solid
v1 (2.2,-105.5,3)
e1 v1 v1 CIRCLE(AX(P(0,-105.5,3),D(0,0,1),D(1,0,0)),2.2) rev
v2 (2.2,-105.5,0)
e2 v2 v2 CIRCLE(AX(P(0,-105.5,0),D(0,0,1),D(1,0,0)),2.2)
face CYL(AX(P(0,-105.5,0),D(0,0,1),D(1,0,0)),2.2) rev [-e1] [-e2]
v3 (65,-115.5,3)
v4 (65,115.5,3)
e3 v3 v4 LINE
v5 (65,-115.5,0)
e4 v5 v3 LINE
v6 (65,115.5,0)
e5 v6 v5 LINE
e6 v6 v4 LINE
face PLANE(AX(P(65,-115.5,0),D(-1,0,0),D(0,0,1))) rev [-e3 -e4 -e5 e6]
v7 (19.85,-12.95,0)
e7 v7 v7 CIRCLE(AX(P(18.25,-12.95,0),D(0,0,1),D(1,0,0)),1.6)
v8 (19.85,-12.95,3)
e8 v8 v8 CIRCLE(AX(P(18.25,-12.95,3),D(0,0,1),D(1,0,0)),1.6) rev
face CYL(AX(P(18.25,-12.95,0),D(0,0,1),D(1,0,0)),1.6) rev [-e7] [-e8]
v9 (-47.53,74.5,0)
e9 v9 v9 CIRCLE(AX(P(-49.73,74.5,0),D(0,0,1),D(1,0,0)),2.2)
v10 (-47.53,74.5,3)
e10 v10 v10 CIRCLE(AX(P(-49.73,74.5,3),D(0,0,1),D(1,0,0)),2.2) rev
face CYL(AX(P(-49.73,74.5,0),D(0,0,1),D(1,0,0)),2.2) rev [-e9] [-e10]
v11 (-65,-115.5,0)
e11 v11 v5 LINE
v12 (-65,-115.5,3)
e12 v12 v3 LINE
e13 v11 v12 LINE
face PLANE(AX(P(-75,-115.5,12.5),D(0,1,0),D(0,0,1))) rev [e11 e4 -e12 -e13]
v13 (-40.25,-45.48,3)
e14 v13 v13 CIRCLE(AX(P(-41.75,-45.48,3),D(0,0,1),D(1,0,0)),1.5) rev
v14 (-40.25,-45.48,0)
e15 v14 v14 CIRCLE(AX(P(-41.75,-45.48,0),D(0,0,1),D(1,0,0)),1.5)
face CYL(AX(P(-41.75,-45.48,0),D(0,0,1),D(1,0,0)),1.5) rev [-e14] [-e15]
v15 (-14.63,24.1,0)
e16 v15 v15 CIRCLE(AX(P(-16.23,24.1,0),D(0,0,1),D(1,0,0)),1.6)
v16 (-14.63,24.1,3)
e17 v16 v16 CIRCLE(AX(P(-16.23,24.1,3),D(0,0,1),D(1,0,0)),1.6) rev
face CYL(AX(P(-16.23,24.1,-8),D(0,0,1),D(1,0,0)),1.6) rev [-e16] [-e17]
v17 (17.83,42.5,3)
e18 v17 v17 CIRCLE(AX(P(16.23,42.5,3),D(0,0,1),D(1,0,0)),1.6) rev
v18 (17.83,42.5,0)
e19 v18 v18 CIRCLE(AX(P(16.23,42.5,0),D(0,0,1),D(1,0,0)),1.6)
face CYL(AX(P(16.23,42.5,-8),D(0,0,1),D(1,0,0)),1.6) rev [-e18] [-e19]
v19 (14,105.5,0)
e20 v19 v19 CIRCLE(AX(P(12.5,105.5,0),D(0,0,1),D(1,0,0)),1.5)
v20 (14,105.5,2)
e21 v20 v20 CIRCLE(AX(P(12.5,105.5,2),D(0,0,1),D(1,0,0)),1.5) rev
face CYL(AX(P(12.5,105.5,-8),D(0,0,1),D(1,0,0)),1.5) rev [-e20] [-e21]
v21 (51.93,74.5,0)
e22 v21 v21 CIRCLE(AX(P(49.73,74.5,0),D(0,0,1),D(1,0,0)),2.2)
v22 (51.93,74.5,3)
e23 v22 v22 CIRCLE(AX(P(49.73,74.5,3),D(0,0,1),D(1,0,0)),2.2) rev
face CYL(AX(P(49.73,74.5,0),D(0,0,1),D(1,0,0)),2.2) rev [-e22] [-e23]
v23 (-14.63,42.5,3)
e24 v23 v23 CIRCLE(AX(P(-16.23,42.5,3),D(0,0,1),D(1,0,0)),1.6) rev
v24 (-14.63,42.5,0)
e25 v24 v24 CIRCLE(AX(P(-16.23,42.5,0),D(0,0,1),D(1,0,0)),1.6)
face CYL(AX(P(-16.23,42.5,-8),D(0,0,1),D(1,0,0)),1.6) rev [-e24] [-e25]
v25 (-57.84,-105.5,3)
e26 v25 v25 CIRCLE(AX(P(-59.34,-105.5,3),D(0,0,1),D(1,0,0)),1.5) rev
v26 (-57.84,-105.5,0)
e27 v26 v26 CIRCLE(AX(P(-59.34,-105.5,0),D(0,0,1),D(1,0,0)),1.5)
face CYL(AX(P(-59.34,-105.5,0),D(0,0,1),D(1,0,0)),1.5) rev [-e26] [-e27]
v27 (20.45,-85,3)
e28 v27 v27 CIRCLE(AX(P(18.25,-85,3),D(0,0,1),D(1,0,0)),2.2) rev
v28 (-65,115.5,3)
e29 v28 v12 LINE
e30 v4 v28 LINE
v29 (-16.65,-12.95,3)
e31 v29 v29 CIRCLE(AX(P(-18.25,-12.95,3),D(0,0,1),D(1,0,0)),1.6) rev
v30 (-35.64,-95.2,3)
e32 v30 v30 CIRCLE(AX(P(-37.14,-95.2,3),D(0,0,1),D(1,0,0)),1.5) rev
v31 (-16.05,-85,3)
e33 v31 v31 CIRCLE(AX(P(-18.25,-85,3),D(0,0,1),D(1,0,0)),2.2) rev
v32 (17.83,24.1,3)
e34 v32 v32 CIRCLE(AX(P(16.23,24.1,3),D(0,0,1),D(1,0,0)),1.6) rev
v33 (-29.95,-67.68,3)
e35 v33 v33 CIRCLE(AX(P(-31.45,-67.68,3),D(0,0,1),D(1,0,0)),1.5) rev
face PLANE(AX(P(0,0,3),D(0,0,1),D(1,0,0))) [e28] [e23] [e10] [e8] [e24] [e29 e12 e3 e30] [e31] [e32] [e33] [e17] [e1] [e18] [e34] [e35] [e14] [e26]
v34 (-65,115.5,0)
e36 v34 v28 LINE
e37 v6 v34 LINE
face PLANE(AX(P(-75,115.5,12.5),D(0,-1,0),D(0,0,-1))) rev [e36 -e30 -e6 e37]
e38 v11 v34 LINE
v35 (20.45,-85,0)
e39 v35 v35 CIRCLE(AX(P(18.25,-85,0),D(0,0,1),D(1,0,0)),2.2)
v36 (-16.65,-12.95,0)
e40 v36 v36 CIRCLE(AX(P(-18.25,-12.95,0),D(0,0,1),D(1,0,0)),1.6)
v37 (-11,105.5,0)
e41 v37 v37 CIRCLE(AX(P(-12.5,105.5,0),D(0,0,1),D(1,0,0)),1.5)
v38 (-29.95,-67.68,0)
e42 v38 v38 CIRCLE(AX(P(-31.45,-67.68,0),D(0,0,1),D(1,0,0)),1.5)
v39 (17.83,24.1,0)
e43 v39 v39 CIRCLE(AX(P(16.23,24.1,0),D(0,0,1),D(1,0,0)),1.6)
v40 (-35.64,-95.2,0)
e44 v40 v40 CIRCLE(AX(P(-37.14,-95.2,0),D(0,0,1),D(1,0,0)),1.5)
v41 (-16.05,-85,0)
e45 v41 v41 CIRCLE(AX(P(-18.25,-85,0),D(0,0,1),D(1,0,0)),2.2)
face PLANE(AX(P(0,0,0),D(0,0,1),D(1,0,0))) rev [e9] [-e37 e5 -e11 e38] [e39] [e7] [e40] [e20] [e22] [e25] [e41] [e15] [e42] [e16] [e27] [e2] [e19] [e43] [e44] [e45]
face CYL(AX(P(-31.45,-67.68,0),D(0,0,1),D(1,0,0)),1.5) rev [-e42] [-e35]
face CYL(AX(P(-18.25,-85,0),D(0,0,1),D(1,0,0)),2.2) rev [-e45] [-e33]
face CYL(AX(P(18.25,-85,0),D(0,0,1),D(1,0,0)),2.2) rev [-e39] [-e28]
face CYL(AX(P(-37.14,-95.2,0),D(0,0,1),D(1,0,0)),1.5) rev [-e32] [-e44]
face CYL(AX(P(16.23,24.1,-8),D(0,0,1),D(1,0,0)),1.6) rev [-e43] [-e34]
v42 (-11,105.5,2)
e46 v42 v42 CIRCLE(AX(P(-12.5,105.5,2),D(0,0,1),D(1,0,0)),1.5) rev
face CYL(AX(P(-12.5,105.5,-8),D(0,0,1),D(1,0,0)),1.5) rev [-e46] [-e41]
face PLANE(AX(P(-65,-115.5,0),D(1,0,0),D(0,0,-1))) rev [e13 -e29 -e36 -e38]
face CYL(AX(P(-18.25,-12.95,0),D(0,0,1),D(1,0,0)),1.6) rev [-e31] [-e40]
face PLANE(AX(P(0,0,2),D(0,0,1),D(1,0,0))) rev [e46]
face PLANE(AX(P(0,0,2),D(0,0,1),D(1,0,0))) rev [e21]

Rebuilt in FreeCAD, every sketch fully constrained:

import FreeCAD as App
import Part
import Sketcher

V = App.Vector


def add_polygon(sketch, points):
    """Adds a closed chain of lines whose ends are joined by coincident constraints."""
    first, n = sketch.GeometryCount, len(points)
    for a, b in zip(points, points[1:] + points[:1]):
        sketch.addGeometry(Part.LineSegment(App.Vector(*a, 0), App.Vector(*b, 0)), False)
    for i in range(n):
        sketch.addConstraint(Sketcher.Constraint("Coincident", first + i, 2, first + (i + 1) % n, 1))

doc = App.newDocument("Part")
body = doc.addObject("PartDesign::Body", "Body")

sketch1 = doc.addObject("Sketcher::SketchObject", "Sketch")
body.addObject(sketch1)
sketch1.AttachmentSupport = (doc.XY_Plane, [""])
sketch1.MapMode = "FlatFace"
add_polygon(sketch1, [(-75, 116), (-75, -116), (75, -116), (75, 116)])
sketch1.addConstraint([
    Sketcher.Constraint("Vertical", 0),
    Sketcher.Constraint("Horizontal", 1),
    Sketcher.Constraint("Vertical", 2),
    Sketcher.Constraint("Horizontal", 3),
    Sketcher.Constraint("Symmetric", 0, 2, 2, 2, -1, 1),
    Sketcher.Constraint("DistanceX", 1, 1, 1, 2, 150.0),
    Sketcher.Constraint("DistanceY", 0, 2, 0, 1, 231.0),
])
pad1 = doc.addObject("PartDesign::Pad", "Pad")
body.addObject(pad1)
pad1.Profile = sketch1
pad1.Length = 12.5

sketch2 = doc.addObject("Sketcher::SketchObject", "Sketch001")
body.addObject(sketch2)
sketch2.AttachmentSupport = (doc.XY_Plane, [""])
sketch2.MapMode = "FlatFace"
sketch2.AttachmentOffset = App.Placement(V(0, 0, 12.5), App.Rotation())
add_polygon(sketch2, [(22, 116), (-22, 116), (-22, 14), (22, 14)])
sketch2.addConstraint([
    Sketcher.Constraint("Horizontal", 0),
    Sketcher.Constraint("Vertical", 1),
    Sketcher.Constraint("Horizontal", 2),
    Sketcher.Constraint("Vertical", 3),
    Sketcher.Constraint("DistanceX", 0, 2, 0, 1, 43.0),
    Sketcher.Constraint("DistanceY", 1, 2, 1, 1, 102.0),
    Sketcher.Constraint("DistanceX", 0, 2, -1, 1, 21.5),
    Sketcher.Constraint("DistanceY", -1, 1, 0, 2, 115.5),
])
pocket1 = doc.addObject("PartDesign::Pocket", "Pocket")
body.addObject(pocket1)
pocket1.Profile = sketch2
pocket1.Length = 10.5

sketch3 = doc.addObject("Sketcher::SketchObject", "Sketch002")
body.addObject(sketch3)
sketch3.AttachmentSupport = (doc.XY_Plane, [""])
sketch3.MapMode = "FlatFace"
sketch3.AttachmentOffset = App.Placement(V(0, 0, 12.5), App.Rotation())
sketch3.addGeometry([
    Part.Circle(V(-49.7, 74.5, 0), V(0, 0, 1), 2.2),
    Part.Circle(V(49.7, 74.5, 0), V(0, 0, 1), 2.2),
], False)
sketch3.addConstraint([
    Sketcher.Constraint("Equal", 0, 1),
    Sketcher.Constraint("Symmetric", 0, 3, 1, 3, -2),
    Sketcher.Constraint("Diameter", 0, 4.4),
    Sketcher.Constraint("DistanceY", -1, 1, 0, 3, 74.5),
    Sketcher.Constraint("DistanceX", 0, 3, -1, 1, 49.73),
])
pocket2 = doc.addObject("PartDesign::Pocket", "Pocket001")
body.addObject(pocket2)
pocket2.Profile = sketch3
pocket2.Type = "ThroughAll"
pocket2.Midplane = True

sketch4 = doc.addObject("Sketcher::SketchObject", "Sketch003")
body.addObject(sketch4)
sketch4.AttachmentSupport = (doc.XY_Plane, [""])
sketch4.MapMode = "FlatFace"
sketch4.AttachmentOffset = App.Placement(V(0, 0, 12.5), App.Rotation())
sketch4.addGeometry([
    Part.Circle(V(18.2, -85, 0), V(0, 0, 1), 2.2),
    Part.Circle(V(18.2, -12.9, 0), V(0, 0, 1), 1.6),
    Part.Circle(V(-41.8, -45.5, 0), V(0, 0, 1), 1.5),
    Part.Circle(V(-31.4, -67.7, 0), V(0, 0, 1), 1.5),
    Part.Circle(V(-18.2, -85, 0), V(0, 0, 1), 2.2),
    Part.Circle(V(-18.2, -12.9, 0), V(0, 0, 1), 1.6),
    Part.Circle(V(0, -105.5, 0), V(0, 0, 1), 2.2),
    Part.Circle(V(-59.3, -105.5, 0), V(0, 0, 1), 1.5),
    Part.Circle(V(-37.1, -95.2, 0), V(0, 0, 1), 1.5),
], False)
sketch4.addConstraint([
    Sketcher.Constraint("Equal", 2, 3),
    Sketcher.Constraint("Equal", 0, 4),
    Sketcher.Constraint("Equal", 1, 5),
    Sketcher.Constraint("Equal", 4, 6),
    Sketcher.Constraint("Equal", 3, 7),
    Sketcher.Constraint("Equal", 7, 8),
    Sketcher.Constraint("Symmetric", 0, 3, 4, 3, -2),
    Sketcher.Constraint("Symmetric", 1, 3, 5, 3, -2),
    Sketcher.Constraint("PointOnObject", 6, 3, -2),
    Sketcher.Constraint("Horizontal", 6, 3, 7, 3),
    Sketcher.Constraint("Vertical", 0, 3, 1, 3),
    Sketcher.Constraint("Diameter", 2, 3.0),
    Sketcher.Constraint("Diameter", 0, 4.4),
    Sketcher.Constraint("Diameter", 1, 3.2),
    Sketcher.Constraint("DistanceY", 0, 3, -1, 1, 85.0),
    Sketcher.Constraint("DistanceX", 2, 3, 1, 3, 60.0),
    Sketcher.Constraint("DistanceY", 6, 3, -1, 1, 105.5),
    Sketcher.Constraint("DistanceY", 8, 3, -1, 1, 95.2),
    Sketcher.Constraint("DistanceX", 2, 3, 3, 3, 10.3),
    Sketcher.Constraint("DistanceY", 3, 3, 2, 3, 22.2),
    Sketcher.Constraint("DistanceX", 3, 3, 4, 3, 13.2),
    Sketcher.Constraint("DistanceX", 7, 3, 8, 3, 22.2),
    Sketcher.Constraint("DistanceY", 1, 3, -1, 1, 12.95),
    Sketcher.Constraint("DistanceY", 2, 3, -1, 1, 45.48),
    Sketcher.Constraint("DistanceX", 7, 3, -1, 1, 59.34),
])
pocket3 = doc.addObject("PartDesign::Pocket", "Pocket002")
body.addObject(pocket3)
pocket3.Profile = sketch4
pocket3.Type = "ThroughAll"

sketch5 = doc.addObject("Sketcher::SketchObject", "Sketch004")
body.addObject(sketch5)
sketch5.AttachmentSupport = (doc.XY_Plane, [""])
sketch5.MapMode = "FlatFace"
sketch5.AttachmentOffset = App.Placement(V(0, 0, 2), App.Rotation())
sketch5.addGeometry([
    Part.Circle(V(-12.5, 105.5, 0), V(0, 0, 1), 1.5),
    Part.Circle(V(12.5, 105.5, 0), V(0, 0, 1), 1.5),
], False)
sketch5.addConstraint([
    Sketcher.Constraint("Equal", 0, 1),
    Sketcher.Constraint("Symmetric", 0, 3, 1, 3, -2),
    Sketcher.Constraint("Diameter", 0, 3.0),
    Sketcher.Constraint("DistanceX", 0, 3, 1, 3, 25.0),
    Sketcher.Constraint("DistanceY", -1, 1, 0, 3, 105.5),
])
pocket4 = doc.addObject("PartDesign::Pocket", "Pocket003")
body.addObject(pocket4)
pocket4.Profile = sketch5
pocket4.Length = 10

sketch6 = doc.addObject("Sketcher::SketchObject", "Sketch005")
body.addObject(sketch6)
sketch6.AttachmentSupport = (doc.XY_Plane, [""])
sketch6.MapMode = "FlatFace"
sketch6.AttachmentOffset = App.Placement(V(0, 0, 2), App.Rotation())
sketch6.addGeometry([
    Part.Circle(V(-16.2, 42.5, 0), V(0, 0, 1), 1.6),
    Part.Circle(V(16.2, 42.5, 0), V(0, 0, 1), 1.6),
    Part.Circle(V(-16.2, 24.1, 0), V(0, 0, 1), 1.6),
    Part.Circle(V(16.2, 24.1, 0), V(0, 0, 1), 1.6),
], False)
sketch6.addConstraint([
    Sketcher.Constraint("Equal", 0, 1),
    Sketcher.Constraint("Equal", 1, 2),
    Sketcher.Constraint("Equal", 2, 3),
    Sketcher.Constraint("Symmetric", 0, 3, 1, 3, -2),
    Sketcher.Constraint("Symmetric", 2, 3, 3, 3, -2),
    Sketcher.Constraint("Vertical", 0, 3, 2, 3),
    Sketcher.Constraint("Diameter", 0, 3.2),
    Sketcher.Constraint("DistanceY", -1, 1, 0, 3, 42.5),
    Sketcher.Constraint("DistanceY", -1, 1, 2, 3, 24.1),
    Sketcher.Constraint("DistanceX", 0, 3, -1, 1, 16.23),
])
pocket5 = doc.addObject("PartDesign::Pocket", "Pocket004")
body.addObject(pocket5)
pocket5.Profile = sketch6
pocket5.Length = 10

sketch7 = doc.addObject("Sketcher::SketchObject", "Sketch006")
body.addObject(sketch7)
sketch7.AttachmentSupport = (doc.XY_Plane, [""])
sketch7.MapMode = "FlatFace"
sketch7.AttachmentOffset = App.Placement(V(0, 0, 12.5), App.Rotation())
add_polygon(sketch7, [(-75, 116), (-75, -116), (-65, -116), (-65, 116)])
sketch7.addConstraint([
    Sketcher.Constraint("Vertical", 0),
    Sketcher.Constraint("Horizontal", 1),
    Sketcher.Constraint("Vertical", 2),
    Sketcher.Constraint("Horizontal", 3),
    Sketcher.Constraint("DistanceX", 1, 1, 1, 2, 10.0),
    Sketcher.Constraint("DistanceY", 0, 2, 0, 1, 231.0),
    Sketcher.Constraint("DistanceX", 0, 2, -1, 1, 75.0),
    Sketcher.Constraint("DistanceY", 0, 2, -1, 1, 115.5),
])
pocket6 = doc.addObject("PartDesign::Pocket", "Pocket005")
body.addObject(pocket6)
pocket6.Profile = sketch7
pocket6.Type = "ThroughAll"

sketch8 = doc.addObject("Sketcher::SketchObject", "Sketch007")
body.addObject(sketch8)
sketch8.AttachmentSupport = (doc.XY_Plane, [""])
sketch8.MapMode = "FlatFace"
sketch8.AttachmentOffset = App.Placement(V(0, 0, 12.5), App.Rotation())
add_polygon(sketch8, [(65, 116), (65, -116), (75, -116), (75, 116)])
sketch8.addConstraint([
    Sketcher.Constraint("Vertical", 0),
    Sketcher.Constraint("Horizontal", 1),
    Sketcher.Constraint("Vertical", 2),
    Sketcher.Constraint("Horizontal", 3),
    Sketcher.Constraint("DistanceX", 1, 1, 1, 2, 10.0),
    Sketcher.Constraint("DistanceY", 0, 2, 0, 1, 231.0),
    Sketcher.Constraint("DistanceX", -1, 1, 0, 2, 65.0),
    Sketcher.Constraint("DistanceY", 0, 2, -1, 1, 115.5),
])
pocket7 = doc.addObject("PartDesign::Pocket", "Pocket006")
body.addObject(pocket7)
pocket7.Profile = sketch8
pocket7.Type = "ThroughAll"

sketch9 = doc.addObject("Sketcher::SketchObject", "Sketch008")
body.addObject(sketch9)
sketch9.AttachmentSupport = (doc.XY_Plane, [""])
sketch9.MapMode = "FlatFace"
sketch9.AttachmentOffset = App.Placement(V(0, 0, 2), App.Rotation())
add_polygon(sketch9, [(-22, 116), (-22, 14), (22, 14), (22, 116)])
sketch9.addConstraint([
    Sketcher.Constraint("Vertical", 0),
    Sketcher.Constraint("Horizontal", 1),
    Sketcher.Constraint("Vertical", 2),
    Sketcher.Constraint("Horizontal", 3),
    Sketcher.Constraint("DistanceX", 1, 1, 1, 2, 43.0),
    Sketcher.Constraint("DistanceY", 0, 2, 0, 1, 102.0),
    Sketcher.Constraint("DistanceX", 0, 2, -1, 1, 21.5),
    Sketcher.Constraint("DistanceY", -1, 1, 0, 2, 13.5),
])
pad2 = doc.addObject("PartDesign::Pad", "Pad001")
body.addObject(pad2)
pad2.Profile = sketch9
pad2.Length = 10.5

sketch10 = doc.addObject("Sketcher::SketchObject", "Sketch009")
body.addObject(sketch10)
sketch10.AttachmentSupport = (doc.XY_Plane, [""])
sketch10.MapMode = "FlatFace"
sketch10.addGeometry([
    Part.Circle(V(16.2, 24.1, 0), V(0, 0, 1), 1.6),
    Part.Circle(V(16.2, 42.5, 0), V(0, 0, 1), 1.6),
    Part.Circle(V(-16.2, 42.5, 0), V(0, 0, 1), 1.6),
    Part.Circle(V(-16.2, 24.1, 0), V(0, 0, 1), 1.6),
], False)
sketch10.addConstraint([
    Sketcher.Constraint("Equal", 0, 1),
    Sketcher.Constraint("Equal", 1, 2),
    Sketcher.Constraint("Equal", 2, 3),
    Sketcher.Constraint("Symmetric", 1, 3, 2, 3, -2),
    Sketcher.Constraint("Symmetric", 0, 3, 3, 3, -2),
    Sketcher.Constraint("Vertical", 0, 3, 1, 3),
    Sketcher.Constraint("Diameter", 0, 3.2),
    Sketcher.Constraint("DistanceY", -1, 1, 0, 3, 24.1),
    Sketcher.Constraint("DistanceY", -1, 1, 1, 3, 42.5),
    Sketcher.Constraint("DistanceX", -1, 1, 0, 3, 16.23),
])
pocket8 = doc.addObject("PartDesign::Pocket", "Pocket007")
body.addObject(pocket8)
pocket8.Profile = sketch10
pocket8.Length = 30
pocket8.Reversed = True

sketch11 = doc.addObject("Sketcher::SketchObject", "Sketch010")
body.addObject(sketch11)
sketch11.AttachmentSupport = (doc.XY_Plane, [""])
sketch11.MapMode = "FlatFace"
sketch11.AttachmentOffset = App.Placement(V(0, 0, 12.5), App.Rotation())
add_polygon(sketch11, [(-65, 116), (-65, -116), (65, -116), (65, 116)])
sketch11.addConstraint([
    Sketcher.Constraint("Vertical", 0),
    Sketcher.Constraint("Horizontal", 1),
    Sketcher.Constraint("Vertical", 2),
    Sketcher.Constraint("Horizontal", 3),
    Sketcher.Constraint("Symmetric", 0, 2, 2, 2, -1, 1),
    Sketcher.Constraint("DistanceX", 1, 1, 1, 2, 130.0),
    Sketcher.Constraint("DistanceY", 0, 2, 0, 1, 231.0),
])
pocket9 = doc.addObject("PartDesign::Pocket", "Pocket008")
body.addObject(pocket9)
pocket9.Profile = sketch11
pocket9.Length = 9.5

doc.recompute()
